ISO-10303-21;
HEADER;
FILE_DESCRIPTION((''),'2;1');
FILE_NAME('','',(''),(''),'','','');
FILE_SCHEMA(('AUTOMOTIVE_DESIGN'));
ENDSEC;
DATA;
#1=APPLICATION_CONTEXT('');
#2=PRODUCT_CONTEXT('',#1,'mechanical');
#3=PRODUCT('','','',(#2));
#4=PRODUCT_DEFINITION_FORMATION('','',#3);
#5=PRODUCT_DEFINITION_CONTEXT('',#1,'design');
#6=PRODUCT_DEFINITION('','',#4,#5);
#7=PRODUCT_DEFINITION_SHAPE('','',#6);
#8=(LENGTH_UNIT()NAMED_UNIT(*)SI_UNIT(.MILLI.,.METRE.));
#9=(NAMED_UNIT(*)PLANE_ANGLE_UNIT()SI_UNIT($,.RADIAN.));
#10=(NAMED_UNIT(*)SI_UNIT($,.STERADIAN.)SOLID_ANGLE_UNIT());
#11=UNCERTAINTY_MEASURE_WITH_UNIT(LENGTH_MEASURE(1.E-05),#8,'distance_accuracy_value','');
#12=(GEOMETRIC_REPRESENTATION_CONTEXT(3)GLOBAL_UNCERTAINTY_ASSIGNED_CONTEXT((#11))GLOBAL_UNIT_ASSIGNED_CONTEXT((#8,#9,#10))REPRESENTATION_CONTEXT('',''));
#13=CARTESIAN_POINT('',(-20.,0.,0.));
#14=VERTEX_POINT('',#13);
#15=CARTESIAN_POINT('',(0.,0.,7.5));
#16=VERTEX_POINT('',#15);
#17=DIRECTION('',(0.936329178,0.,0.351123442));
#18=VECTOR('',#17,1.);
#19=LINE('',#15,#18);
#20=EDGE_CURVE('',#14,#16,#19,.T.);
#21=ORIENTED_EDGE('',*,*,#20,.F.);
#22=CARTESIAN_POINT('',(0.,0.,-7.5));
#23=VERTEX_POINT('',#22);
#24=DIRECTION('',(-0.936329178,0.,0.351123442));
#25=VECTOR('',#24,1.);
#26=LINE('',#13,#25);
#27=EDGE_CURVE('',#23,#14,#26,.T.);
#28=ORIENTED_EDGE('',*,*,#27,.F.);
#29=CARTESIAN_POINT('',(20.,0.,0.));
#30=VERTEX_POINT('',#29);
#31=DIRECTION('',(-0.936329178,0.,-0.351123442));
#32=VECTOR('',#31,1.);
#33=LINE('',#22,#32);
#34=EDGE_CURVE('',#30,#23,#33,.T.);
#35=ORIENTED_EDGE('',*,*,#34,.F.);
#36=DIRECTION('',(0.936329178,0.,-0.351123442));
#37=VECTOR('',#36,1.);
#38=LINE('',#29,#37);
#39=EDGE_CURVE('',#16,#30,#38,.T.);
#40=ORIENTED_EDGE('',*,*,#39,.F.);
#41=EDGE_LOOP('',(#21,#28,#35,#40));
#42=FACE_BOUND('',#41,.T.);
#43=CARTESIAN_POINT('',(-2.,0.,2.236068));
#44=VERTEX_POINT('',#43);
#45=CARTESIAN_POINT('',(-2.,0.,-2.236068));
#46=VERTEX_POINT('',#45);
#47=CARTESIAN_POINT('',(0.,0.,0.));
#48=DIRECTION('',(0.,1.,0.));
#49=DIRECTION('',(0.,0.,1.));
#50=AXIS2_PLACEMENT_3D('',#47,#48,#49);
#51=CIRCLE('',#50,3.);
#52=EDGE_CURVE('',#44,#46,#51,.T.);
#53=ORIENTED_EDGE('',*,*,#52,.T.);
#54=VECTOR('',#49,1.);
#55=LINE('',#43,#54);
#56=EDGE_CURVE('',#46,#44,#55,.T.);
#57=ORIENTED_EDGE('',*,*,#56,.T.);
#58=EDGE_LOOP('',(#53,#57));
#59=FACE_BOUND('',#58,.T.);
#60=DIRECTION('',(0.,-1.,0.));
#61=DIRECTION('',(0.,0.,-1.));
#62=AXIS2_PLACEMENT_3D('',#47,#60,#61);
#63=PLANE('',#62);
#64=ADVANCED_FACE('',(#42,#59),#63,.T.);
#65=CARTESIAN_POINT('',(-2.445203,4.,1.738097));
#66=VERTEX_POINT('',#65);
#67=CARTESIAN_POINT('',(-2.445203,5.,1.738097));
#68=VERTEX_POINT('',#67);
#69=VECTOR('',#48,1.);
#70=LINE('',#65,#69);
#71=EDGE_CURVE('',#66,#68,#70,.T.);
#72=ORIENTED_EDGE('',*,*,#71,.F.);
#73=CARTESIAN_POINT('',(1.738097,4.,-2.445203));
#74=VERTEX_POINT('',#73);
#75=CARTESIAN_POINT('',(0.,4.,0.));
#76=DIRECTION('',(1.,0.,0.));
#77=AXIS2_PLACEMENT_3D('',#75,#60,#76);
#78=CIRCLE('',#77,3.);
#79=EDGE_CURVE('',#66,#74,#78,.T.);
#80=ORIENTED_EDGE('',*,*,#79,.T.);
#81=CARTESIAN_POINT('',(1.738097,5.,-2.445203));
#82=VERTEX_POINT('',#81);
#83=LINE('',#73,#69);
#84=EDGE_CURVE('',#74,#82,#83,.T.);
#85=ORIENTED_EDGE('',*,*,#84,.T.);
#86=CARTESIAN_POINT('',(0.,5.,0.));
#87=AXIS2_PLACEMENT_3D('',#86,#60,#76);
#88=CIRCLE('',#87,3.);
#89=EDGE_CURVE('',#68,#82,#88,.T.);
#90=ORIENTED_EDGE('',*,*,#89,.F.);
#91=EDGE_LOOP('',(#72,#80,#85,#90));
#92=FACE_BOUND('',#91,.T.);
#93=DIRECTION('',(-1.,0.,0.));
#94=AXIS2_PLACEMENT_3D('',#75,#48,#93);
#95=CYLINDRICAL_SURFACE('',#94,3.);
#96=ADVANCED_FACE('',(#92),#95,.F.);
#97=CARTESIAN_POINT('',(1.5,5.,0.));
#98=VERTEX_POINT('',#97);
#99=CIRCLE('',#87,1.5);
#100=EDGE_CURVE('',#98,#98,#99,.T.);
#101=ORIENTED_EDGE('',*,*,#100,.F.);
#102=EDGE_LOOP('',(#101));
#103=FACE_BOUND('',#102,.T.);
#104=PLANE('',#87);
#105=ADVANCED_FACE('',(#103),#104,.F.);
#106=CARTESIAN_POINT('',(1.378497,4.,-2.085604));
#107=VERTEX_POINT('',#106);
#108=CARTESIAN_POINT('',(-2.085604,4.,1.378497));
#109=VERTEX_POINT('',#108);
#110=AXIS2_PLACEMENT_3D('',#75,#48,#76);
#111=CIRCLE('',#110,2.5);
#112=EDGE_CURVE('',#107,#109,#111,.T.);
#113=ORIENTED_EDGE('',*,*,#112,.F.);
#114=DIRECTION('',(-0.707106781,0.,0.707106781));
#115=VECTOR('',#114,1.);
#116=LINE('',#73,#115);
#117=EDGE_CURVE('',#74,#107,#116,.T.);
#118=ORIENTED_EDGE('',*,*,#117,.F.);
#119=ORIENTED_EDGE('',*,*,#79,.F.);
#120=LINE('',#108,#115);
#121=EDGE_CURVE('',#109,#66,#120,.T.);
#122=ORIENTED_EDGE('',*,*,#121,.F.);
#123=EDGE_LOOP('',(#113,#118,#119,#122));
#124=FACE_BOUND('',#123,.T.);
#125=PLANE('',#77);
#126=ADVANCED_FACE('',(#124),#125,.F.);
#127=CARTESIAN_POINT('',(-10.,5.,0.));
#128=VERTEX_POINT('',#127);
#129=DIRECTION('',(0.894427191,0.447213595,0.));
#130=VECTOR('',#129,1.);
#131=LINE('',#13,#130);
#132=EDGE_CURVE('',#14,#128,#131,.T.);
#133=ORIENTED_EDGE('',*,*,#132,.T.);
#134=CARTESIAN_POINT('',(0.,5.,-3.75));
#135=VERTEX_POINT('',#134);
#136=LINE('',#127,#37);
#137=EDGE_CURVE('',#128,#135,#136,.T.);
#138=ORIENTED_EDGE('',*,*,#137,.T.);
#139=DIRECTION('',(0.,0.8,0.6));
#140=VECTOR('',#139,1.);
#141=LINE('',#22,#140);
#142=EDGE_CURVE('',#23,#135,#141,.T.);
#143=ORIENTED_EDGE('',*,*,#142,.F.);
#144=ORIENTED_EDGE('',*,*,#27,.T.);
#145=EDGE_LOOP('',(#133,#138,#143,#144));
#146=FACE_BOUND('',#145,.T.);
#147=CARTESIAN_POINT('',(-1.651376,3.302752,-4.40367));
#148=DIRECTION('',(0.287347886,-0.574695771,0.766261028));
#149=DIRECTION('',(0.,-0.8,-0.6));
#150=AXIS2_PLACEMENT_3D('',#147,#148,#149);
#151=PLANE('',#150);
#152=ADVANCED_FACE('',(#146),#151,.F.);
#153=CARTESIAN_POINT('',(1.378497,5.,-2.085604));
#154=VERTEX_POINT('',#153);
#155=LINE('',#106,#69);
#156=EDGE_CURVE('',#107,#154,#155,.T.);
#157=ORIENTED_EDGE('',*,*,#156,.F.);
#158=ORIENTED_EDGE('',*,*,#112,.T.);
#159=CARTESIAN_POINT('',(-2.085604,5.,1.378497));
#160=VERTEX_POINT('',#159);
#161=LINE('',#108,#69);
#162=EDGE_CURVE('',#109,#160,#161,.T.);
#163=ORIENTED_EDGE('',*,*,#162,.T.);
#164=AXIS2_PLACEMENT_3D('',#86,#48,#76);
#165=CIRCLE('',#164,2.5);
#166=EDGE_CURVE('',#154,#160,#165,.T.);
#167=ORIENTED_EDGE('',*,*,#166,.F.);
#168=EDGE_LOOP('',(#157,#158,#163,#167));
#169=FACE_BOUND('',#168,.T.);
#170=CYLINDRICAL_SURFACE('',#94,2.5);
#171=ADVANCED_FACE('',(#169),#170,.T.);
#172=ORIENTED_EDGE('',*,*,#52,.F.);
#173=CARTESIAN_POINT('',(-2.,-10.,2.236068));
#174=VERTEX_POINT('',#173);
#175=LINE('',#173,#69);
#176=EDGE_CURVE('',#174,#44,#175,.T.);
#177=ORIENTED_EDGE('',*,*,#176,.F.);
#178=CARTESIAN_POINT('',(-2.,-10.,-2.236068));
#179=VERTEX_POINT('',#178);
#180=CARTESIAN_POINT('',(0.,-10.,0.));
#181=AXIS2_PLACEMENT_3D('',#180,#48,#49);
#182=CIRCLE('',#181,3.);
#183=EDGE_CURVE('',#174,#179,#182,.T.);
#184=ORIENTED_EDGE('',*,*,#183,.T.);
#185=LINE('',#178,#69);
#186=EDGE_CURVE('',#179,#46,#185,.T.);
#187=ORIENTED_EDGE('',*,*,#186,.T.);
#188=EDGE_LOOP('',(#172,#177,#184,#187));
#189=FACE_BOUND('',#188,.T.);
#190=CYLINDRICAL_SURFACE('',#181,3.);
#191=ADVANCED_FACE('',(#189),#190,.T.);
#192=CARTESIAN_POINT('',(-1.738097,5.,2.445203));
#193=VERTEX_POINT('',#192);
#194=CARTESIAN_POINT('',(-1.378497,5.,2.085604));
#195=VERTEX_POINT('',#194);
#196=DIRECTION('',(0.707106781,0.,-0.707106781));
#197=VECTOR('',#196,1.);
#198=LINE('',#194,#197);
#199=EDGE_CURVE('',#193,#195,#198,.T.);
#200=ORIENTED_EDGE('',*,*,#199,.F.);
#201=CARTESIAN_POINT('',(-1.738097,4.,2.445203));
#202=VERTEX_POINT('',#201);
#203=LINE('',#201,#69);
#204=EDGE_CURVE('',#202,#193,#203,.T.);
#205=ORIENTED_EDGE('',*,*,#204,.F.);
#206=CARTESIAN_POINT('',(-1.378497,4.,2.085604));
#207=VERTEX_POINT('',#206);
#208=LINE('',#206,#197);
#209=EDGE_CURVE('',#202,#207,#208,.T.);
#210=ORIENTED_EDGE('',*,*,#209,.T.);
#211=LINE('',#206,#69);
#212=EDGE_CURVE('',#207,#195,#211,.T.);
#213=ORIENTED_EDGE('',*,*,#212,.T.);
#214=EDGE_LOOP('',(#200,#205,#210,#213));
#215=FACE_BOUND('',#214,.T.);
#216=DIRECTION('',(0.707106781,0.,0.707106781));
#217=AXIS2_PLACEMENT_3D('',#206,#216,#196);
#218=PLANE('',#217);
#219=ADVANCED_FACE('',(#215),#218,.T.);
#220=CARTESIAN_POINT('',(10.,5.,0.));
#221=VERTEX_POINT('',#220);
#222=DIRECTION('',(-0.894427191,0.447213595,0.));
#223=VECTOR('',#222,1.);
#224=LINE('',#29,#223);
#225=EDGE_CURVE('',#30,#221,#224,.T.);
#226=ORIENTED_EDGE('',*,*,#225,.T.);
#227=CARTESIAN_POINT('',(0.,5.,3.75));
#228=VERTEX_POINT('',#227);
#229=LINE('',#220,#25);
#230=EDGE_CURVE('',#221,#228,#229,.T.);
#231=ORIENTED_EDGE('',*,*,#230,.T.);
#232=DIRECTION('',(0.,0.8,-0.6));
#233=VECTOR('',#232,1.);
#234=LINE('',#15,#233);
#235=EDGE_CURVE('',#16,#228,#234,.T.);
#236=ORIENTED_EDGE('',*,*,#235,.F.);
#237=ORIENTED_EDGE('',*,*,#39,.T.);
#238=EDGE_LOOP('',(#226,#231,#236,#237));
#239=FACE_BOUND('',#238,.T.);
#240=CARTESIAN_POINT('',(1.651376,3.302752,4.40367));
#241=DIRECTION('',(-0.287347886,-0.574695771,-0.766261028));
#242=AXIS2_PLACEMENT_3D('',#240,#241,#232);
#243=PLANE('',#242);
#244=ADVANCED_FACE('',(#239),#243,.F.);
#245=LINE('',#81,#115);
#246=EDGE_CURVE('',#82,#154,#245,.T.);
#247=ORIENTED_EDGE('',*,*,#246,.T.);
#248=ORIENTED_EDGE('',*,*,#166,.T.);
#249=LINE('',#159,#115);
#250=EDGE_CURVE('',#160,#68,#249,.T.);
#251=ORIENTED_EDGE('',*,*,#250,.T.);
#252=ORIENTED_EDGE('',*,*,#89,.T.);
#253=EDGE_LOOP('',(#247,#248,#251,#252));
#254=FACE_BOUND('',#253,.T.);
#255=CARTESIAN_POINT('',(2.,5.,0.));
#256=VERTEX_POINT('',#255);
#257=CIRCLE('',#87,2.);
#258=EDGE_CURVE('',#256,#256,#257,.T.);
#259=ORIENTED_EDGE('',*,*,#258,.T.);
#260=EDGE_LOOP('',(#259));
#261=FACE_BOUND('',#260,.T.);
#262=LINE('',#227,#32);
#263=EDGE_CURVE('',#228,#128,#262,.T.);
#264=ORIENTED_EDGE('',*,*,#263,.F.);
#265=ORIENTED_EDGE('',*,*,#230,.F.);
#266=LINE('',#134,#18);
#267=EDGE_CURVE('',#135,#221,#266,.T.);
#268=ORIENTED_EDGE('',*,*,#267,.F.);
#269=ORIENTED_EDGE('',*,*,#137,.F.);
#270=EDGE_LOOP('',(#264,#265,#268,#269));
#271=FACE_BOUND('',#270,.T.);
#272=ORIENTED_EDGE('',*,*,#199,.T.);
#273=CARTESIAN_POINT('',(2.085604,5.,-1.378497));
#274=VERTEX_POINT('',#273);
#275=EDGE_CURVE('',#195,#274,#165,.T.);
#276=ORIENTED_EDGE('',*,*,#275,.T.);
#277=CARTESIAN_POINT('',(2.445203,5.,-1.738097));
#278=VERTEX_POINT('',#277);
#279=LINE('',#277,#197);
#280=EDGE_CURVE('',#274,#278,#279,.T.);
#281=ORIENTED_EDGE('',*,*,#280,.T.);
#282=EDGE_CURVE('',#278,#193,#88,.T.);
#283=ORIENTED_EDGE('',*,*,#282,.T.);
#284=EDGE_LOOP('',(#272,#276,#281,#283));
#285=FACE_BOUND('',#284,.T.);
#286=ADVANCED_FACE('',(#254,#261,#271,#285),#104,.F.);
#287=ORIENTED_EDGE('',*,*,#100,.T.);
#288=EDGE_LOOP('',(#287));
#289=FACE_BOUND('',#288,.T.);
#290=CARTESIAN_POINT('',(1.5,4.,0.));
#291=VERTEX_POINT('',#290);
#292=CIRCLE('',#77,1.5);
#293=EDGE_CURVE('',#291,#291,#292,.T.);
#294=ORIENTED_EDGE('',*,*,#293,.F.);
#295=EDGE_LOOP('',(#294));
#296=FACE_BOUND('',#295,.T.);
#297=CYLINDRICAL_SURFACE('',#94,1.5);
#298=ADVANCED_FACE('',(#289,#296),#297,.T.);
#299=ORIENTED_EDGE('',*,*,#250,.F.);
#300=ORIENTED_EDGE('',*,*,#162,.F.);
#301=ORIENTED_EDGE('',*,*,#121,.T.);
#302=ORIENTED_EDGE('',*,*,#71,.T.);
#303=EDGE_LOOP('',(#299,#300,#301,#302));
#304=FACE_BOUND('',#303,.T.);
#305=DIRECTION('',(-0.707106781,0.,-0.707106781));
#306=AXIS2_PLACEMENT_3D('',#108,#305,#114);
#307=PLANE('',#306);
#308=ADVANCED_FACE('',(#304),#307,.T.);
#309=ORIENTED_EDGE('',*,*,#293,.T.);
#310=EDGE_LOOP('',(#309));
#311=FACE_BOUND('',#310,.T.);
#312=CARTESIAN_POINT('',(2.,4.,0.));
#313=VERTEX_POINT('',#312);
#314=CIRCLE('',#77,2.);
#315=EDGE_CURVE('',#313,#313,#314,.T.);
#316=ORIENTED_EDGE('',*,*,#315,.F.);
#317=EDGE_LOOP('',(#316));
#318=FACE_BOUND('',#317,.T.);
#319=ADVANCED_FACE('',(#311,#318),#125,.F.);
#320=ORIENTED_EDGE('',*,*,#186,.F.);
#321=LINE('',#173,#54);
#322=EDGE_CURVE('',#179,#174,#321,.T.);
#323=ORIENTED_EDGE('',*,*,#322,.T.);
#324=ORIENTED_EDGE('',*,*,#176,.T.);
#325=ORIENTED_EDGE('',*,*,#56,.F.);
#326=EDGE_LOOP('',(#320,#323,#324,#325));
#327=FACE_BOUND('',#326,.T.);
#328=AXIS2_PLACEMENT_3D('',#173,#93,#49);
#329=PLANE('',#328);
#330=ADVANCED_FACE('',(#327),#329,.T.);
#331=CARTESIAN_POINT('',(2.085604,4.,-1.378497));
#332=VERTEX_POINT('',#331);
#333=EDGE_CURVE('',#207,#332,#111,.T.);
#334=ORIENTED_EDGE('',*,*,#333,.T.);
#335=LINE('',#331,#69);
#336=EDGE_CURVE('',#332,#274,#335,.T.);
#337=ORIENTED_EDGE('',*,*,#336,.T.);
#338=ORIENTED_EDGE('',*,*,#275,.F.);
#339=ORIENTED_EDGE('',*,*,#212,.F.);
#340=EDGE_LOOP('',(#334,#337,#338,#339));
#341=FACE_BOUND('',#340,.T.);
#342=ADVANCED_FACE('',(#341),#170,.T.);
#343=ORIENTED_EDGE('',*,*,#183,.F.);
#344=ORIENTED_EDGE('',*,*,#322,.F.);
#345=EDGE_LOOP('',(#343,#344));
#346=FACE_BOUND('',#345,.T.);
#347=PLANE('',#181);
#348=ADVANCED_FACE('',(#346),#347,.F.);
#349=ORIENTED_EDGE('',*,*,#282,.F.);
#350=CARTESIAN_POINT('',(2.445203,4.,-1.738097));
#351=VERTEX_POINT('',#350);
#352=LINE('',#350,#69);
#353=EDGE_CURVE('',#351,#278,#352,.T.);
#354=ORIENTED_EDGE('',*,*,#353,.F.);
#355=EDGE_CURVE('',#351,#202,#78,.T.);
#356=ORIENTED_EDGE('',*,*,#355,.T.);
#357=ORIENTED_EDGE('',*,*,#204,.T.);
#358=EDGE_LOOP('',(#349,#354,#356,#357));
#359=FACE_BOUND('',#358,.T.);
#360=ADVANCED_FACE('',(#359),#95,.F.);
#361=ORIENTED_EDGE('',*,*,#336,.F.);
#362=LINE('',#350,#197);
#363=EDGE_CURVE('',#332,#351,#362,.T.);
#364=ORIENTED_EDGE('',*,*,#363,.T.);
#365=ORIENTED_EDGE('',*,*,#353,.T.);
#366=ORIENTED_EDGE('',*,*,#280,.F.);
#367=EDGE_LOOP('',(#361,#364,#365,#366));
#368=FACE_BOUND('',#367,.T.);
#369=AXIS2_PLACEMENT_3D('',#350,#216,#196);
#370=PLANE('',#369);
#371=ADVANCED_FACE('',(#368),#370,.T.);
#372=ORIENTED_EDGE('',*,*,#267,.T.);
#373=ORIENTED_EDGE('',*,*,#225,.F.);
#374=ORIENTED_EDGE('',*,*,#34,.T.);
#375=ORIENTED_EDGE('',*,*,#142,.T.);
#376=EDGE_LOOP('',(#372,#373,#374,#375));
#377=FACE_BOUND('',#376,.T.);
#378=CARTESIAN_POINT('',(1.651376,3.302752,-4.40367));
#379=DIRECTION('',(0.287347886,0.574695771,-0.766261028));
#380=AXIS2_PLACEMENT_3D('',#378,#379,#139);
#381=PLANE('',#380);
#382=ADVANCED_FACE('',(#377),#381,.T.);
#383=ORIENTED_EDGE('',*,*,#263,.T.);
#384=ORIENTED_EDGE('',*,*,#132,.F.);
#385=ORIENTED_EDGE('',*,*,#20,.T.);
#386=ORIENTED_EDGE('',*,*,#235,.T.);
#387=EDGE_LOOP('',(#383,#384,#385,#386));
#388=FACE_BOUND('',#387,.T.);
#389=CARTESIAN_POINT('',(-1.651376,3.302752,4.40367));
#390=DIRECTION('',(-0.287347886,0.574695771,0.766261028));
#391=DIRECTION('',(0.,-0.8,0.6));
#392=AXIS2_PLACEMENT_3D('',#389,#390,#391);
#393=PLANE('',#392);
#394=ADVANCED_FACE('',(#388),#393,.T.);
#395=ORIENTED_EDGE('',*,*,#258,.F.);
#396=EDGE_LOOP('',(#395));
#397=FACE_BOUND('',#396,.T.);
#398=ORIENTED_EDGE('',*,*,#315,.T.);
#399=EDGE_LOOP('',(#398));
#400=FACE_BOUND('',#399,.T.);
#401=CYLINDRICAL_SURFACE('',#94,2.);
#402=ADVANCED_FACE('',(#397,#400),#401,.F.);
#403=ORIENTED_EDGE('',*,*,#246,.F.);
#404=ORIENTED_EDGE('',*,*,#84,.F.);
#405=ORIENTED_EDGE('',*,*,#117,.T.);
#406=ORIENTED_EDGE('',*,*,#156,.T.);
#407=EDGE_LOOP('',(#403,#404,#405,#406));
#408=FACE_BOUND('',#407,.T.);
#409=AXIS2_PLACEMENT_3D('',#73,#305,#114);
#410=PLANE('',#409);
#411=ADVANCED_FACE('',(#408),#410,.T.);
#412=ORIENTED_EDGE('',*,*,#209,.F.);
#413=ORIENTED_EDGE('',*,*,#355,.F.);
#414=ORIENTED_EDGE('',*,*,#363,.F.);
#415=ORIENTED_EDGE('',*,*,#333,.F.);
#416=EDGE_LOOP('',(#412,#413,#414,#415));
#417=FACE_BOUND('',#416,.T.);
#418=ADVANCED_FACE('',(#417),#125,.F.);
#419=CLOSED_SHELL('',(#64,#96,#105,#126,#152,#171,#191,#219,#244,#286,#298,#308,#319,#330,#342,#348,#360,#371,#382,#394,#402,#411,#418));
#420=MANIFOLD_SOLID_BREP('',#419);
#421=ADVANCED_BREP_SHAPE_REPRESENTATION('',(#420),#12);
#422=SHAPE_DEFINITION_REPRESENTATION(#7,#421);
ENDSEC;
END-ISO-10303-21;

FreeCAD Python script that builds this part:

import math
import FreeCAD as App
import Part
import Sketcher

V = App.Vector
Q = App.Units.Quantity

doc = App.newDocument("Part")
body = doc.addObject("PartDesign::Body", "Body")

sketch1 = body.newObject("Sketcher::SketchObject", "Sketch")
sketch1.AttachmentSupport = (doc.getObject("XZ_Plane"), [""])
sketch1.MapMode = "FlatFace"
sketch1.addGeometry(Part.LineSegment(V(0, -7.5, 0), V(-20, 0, 0)), False)
sketch1.addGeometry(Part.LineSegment(V(-20, 0, 0), V(0, 7.5, 0)), False)
sketch1.addGeometry(Part.LineSegment(V(0, 7.5, 0), V(20, 0, 0)), False)
sketch1.addGeometry(Part.LineSegment(V(20, 0, 0), V(0, -7.5, 0)), False)
sketch1.addConstraint(Sketcher.Constraint("Coincident", 0, 2, 1, 1))
sketch1.addConstraint(Sketcher.Constraint("Coincident", 1, 2, 2, 1))
sketch1.addConstraint(Sketcher.Constraint("Coincident", 2, 2, 3, 1))
sketch1.addConstraint(Sketcher.Constraint("Coincident", 3, 2, 0, 1))
sketch1.addConstraint(Sketcher.Constraint("Symmetric", 0, 2, 2, 2, -1, 1))
sketch1.addConstraint(Sketcher.Constraint("Symmetric", 1, 2, 3, 2, -1, 1))
sketch1.addConstraint(Sketcher.Constraint("PointOnObject", 0, 2, -1))
sketch1.addConstraint(Sketcher.Constraint("PointOnObject", 1, 2, -2))
sketch1.addConstraint(Sketcher.Constraint("DistanceX", 0, 2, -1, 1, Q("20 mm")))
sketch1.addConstraint(Sketcher.Constraint("DistanceY", 3, 2, 1, 2, Q("15 mm")))

sketch2 = body.newObject("Sketcher::SketchObject", "Sketch001")
sketch2.AttachmentSupport = (doc.getObject("XZ_Plane"), [""])
sketch2.MapMode = "FlatFace"
sketch2.AttachmentOffset = App.Placement(V(0, 0, -5), App.Rotation())
sketch2.addGeometry(Part.LineSegment(V(0, -3.75, 0), V(10, 0, 0)), False)
sketch2.addGeometry(Part.LineSegment(V(10, 0, 0), V(0, 3.75, 0)), False)
sketch2.addGeometry(Part.LineSegment(V(0, 3.75, 0), V(-10, 0, 0)), False)
sketch2.addGeometry(Part.LineSegment(V(-10, 0, 0), V(0, -3.75, 0)), False)
sketch2.addConstraint(Sketcher.Constraint("Coincident", 0, 2, 1, 1))
sketch2.addConstraint(Sketcher.Constraint("Coincident", 1, 2, 2, 1))
sketch2.addConstraint(Sketcher.Constraint("Coincident", 2, 2, 3, 1))
sketch2.addConstraint(Sketcher.Constraint("Coincident", 3, 2, 0, 1))
sketch2.addConstraint(Sketcher.Constraint("Symmetric", 0, 2, 2, 2, -1, 1))
sketch2.addConstraint(Sketcher.Constraint("Symmetric", 1, 2, 3, 2, -1, 1))
sketch2.addConstraint(Sketcher.Constraint("PointOnObject", 0, 2, -1))
sketch2.addConstraint(Sketcher.Constraint("PointOnObject", 1, 2, -2))
sketch2.addConstraint(Sketcher.Constraint("DistanceX", -1, 1, 0, 2, Q("10 mm")))
sketch2.addConstraint(Sketcher.Constraint("DistanceY", 3, 2, 1, 2, Q("7.5 mm")))

additiveloft = body.newObject("PartDesign::AdditiveLoft", "AdditiveLoft")
additiveloft.Profile = sketch1
additiveloft.Sections = [sketch2]

sketch3 = body.newObject("Sketcher::SketchObject", "Sketch002")
sketch3.AttachmentSupport = (doc.getObject("XZ_Plane"), [""])
sketch3.MapMode = "FlatFace"
sketch3.addGeometry(Part.LineSegment(V(-2, -2.236068, 0), V(-2, 2.236068, 0)), False)
sketch3.addGeometry(Part.ArcOfCircle(Part.Circle(V(0, 0, 0), V(0, 0, 1), 3), math.radians(-131.810315), math.radians(131.810315)), False)
sketch3.addConstraint(Sketcher.Constraint("Coincident", 0, 1, 1, 1))
sketch3.addConstraint(Sketcher.Constraint("Coincident", 1, 2, 0, 2))
sketch3.addConstraint(Sketcher.Constraint("Vertical", 0))
sketch3.addConstraint(Sketcher.Constraint("Coincident", 1, 3, -1, 1))
sketch3.addConstraint(Sketcher.Constraint("Radius", 1, Q("3 mm")))
sketch3.addConstraint(Sketcher.Constraint("DistanceX", 0, 1, -1, 1, Q("2 mm")))
pad1 = body.newObject("PartDesign::Pad", "Pad")
pad1.Profile = sketch3
pad1.Length = 10

sketch4 = body.newObject("Sketcher::SketchObject", "Sketch003")
sketch4.AttachmentSupport = (doc.getObject("XZ_Plane"), [""])
sketch4.MapMode = "FlatFace"
sketch4.AttachmentOffset = App.Placement(V(0, 0, -5), App.Rotation())
sketch4.addGeometry(Part.LineSegment(V(1.738097, -2.445203, 0), V(1.378497, -2.085604, 0)), False)
sketch4.addGeometry(Part.ArcOfCircle(Part.Circle(V(0, 0, 0), V(0, 0, 1), 2.5), math.radians(146.536959), math.radians(303.463041)), False)
sketch4.addGeometry(Part.LineSegment(V(-2.085604, 1.378497, 0), V(-2.445203, 1.738097, 0)), False)
sketch4.addGeometry(Part.ArcOfCircle(Part.Circle(V(0, 0, 0), V(0, 0, 1), 3), math.radians(144.594068), math.radians(305.405932)), False)
sketch4.addGeometry(Part.LineSegment(V(2.085604, -1.378497, 0), V(2.445203, -1.738097, 0)), False)
sketch4.addGeometry(Part.ArcOfCircle(Part.Circle(V(0, 0, 0), V(0, 0, 1), 3), math.radians(-35.405932), math.radians(125.405932)), False)
sketch4.addGeometry(Part.LineSegment(V(-1.738097, 2.445203, 0), V(-1.378497, 2.085604, 0)), False)
sketch4.addGeometry(Part.ArcOfCircle(Part.Circle(V(0, 0, 0), V(0, 0, 1), 2.5), math.radians(-33.463041), math.radians(123.463041)), False)
sketch4.addConstraint(Sketcher.Constraint("Coincident", 0, 2, 1, 2))
sketch4.addConstraint(Sketcher.Constraint("Coincident", 1, 1, 2, 1))
sketch4.addConstraint(Sketcher.Constraint("Coincident", 2, 2, 3, 1))
sketch4.addConstraint(Sketcher.Constraint("Coincident", 3, 2, 0, 1))
sketch4.addConstraint(Sketcher.Constraint("Coincident", 4, 2, 5, 1))
sketch4.addConstraint(Sketcher.Constraint("Coincident", 5, 2, 6, 1))
sketch4.addConstraint(Sketcher.Constraint("Coincident", 6, 2, 7, 2))
sketch4.addConstraint(Sketcher.Constraint("Coincident", 7, 1, 4, 1))
sketch4.addConstraint(Sketcher.Constraint("Coincident", 1, 3, -1, 1))
sketch4.addConstraint(Sketcher.Constraint("Coincident", 3, 3, -1, 1))
sketch4.addConstraint(Sketcher.Constraint("Coincident", 5, 3, -1, 1))
sketch4.addConstraint(Sketcher.Constraint("Coincident", 7, 3, -1, 1))
sketch4.addConstraint(Sketcher.Constraint("Equal", 3, 5))
sketch4.addConstraint(Sketcher.Constraint("Equal", 1, 7))
sketch4.addConstraint(Sketcher.Constraint("Parallel", 0, 2))
sketch4.addConstraint(Sketcher.Constraint("Parallel", 2, 4))
sketch4.addConstraint(Sketcher.Constraint("Parallel", 4, 6))
sketch4.addConstraint(Sketcher.Constraint("Equal", 0, 2))
sketch4.addConstraint(Sketcher.Constraint("Equal", 2, 4))
sketch4.addConstraint(Sketcher.Constraint("Equal", 4, 6))
sketch4.addConstraint(Sketcher.Constraint("Radius", 3, Q("3 mm")))
sketch4.addConstraint(Sketcher.Constraint("Radius", 1, Q("2.5 mm")))
sketch4.addConstraint(Sketcher.Constraint("Angle", 0, Q("135 deg")))
sketch4.addConstraint(Sketcher.Constraint("DistanceX", 1, 1, 0, 2, Q("3.464102 mm")))
pocket1 = body.newObject("PartDesign::Pocket", "Pocket")
pocket1.Profile = sketch4
pocket1.Length = 1
pocket1.Reversed = True

sketch5 = body.newObject("Sketcher::SketchObject", "Sketch004")
sketch5.AttachmentSupport = (doc.getObject("XZ_Plane"), [""])
sketch5.MapMode = "FlatFace"
sketch5.AttachmentOffset = App.Placement(V(0, 0, -5), App.Rotation())
sketch5.addGeometry(Part.Circle(V(0, 0, 0), V(0, 0, 1), 2), False)
sketch5.addGeometry(Part.Circle(V(0, 0, 0), V(0, 0, 1), 1.5), False)
sketch5.addConstraint(Sketcher.Constraint("Coincident", 0, 3, -1, 1))
sketch5.addConstraint(Sketcher.Constraint("Coincident", 1, 3, -1, 1))
sketch5.addConstraint(Sketcher.Constraint("Diameter", 0, Q("4 mm")))
sketch5.addConstraint(Sketcher.Constraint("Diameter", 1, Q("3 mm")))
pocket2 = body.newObject("PartDesign::Pocket", "Pocket001")
pocket2.Profile = sketch5
pocket2.Length = 1
pocket2.Reversed = True

doc.recompute()
